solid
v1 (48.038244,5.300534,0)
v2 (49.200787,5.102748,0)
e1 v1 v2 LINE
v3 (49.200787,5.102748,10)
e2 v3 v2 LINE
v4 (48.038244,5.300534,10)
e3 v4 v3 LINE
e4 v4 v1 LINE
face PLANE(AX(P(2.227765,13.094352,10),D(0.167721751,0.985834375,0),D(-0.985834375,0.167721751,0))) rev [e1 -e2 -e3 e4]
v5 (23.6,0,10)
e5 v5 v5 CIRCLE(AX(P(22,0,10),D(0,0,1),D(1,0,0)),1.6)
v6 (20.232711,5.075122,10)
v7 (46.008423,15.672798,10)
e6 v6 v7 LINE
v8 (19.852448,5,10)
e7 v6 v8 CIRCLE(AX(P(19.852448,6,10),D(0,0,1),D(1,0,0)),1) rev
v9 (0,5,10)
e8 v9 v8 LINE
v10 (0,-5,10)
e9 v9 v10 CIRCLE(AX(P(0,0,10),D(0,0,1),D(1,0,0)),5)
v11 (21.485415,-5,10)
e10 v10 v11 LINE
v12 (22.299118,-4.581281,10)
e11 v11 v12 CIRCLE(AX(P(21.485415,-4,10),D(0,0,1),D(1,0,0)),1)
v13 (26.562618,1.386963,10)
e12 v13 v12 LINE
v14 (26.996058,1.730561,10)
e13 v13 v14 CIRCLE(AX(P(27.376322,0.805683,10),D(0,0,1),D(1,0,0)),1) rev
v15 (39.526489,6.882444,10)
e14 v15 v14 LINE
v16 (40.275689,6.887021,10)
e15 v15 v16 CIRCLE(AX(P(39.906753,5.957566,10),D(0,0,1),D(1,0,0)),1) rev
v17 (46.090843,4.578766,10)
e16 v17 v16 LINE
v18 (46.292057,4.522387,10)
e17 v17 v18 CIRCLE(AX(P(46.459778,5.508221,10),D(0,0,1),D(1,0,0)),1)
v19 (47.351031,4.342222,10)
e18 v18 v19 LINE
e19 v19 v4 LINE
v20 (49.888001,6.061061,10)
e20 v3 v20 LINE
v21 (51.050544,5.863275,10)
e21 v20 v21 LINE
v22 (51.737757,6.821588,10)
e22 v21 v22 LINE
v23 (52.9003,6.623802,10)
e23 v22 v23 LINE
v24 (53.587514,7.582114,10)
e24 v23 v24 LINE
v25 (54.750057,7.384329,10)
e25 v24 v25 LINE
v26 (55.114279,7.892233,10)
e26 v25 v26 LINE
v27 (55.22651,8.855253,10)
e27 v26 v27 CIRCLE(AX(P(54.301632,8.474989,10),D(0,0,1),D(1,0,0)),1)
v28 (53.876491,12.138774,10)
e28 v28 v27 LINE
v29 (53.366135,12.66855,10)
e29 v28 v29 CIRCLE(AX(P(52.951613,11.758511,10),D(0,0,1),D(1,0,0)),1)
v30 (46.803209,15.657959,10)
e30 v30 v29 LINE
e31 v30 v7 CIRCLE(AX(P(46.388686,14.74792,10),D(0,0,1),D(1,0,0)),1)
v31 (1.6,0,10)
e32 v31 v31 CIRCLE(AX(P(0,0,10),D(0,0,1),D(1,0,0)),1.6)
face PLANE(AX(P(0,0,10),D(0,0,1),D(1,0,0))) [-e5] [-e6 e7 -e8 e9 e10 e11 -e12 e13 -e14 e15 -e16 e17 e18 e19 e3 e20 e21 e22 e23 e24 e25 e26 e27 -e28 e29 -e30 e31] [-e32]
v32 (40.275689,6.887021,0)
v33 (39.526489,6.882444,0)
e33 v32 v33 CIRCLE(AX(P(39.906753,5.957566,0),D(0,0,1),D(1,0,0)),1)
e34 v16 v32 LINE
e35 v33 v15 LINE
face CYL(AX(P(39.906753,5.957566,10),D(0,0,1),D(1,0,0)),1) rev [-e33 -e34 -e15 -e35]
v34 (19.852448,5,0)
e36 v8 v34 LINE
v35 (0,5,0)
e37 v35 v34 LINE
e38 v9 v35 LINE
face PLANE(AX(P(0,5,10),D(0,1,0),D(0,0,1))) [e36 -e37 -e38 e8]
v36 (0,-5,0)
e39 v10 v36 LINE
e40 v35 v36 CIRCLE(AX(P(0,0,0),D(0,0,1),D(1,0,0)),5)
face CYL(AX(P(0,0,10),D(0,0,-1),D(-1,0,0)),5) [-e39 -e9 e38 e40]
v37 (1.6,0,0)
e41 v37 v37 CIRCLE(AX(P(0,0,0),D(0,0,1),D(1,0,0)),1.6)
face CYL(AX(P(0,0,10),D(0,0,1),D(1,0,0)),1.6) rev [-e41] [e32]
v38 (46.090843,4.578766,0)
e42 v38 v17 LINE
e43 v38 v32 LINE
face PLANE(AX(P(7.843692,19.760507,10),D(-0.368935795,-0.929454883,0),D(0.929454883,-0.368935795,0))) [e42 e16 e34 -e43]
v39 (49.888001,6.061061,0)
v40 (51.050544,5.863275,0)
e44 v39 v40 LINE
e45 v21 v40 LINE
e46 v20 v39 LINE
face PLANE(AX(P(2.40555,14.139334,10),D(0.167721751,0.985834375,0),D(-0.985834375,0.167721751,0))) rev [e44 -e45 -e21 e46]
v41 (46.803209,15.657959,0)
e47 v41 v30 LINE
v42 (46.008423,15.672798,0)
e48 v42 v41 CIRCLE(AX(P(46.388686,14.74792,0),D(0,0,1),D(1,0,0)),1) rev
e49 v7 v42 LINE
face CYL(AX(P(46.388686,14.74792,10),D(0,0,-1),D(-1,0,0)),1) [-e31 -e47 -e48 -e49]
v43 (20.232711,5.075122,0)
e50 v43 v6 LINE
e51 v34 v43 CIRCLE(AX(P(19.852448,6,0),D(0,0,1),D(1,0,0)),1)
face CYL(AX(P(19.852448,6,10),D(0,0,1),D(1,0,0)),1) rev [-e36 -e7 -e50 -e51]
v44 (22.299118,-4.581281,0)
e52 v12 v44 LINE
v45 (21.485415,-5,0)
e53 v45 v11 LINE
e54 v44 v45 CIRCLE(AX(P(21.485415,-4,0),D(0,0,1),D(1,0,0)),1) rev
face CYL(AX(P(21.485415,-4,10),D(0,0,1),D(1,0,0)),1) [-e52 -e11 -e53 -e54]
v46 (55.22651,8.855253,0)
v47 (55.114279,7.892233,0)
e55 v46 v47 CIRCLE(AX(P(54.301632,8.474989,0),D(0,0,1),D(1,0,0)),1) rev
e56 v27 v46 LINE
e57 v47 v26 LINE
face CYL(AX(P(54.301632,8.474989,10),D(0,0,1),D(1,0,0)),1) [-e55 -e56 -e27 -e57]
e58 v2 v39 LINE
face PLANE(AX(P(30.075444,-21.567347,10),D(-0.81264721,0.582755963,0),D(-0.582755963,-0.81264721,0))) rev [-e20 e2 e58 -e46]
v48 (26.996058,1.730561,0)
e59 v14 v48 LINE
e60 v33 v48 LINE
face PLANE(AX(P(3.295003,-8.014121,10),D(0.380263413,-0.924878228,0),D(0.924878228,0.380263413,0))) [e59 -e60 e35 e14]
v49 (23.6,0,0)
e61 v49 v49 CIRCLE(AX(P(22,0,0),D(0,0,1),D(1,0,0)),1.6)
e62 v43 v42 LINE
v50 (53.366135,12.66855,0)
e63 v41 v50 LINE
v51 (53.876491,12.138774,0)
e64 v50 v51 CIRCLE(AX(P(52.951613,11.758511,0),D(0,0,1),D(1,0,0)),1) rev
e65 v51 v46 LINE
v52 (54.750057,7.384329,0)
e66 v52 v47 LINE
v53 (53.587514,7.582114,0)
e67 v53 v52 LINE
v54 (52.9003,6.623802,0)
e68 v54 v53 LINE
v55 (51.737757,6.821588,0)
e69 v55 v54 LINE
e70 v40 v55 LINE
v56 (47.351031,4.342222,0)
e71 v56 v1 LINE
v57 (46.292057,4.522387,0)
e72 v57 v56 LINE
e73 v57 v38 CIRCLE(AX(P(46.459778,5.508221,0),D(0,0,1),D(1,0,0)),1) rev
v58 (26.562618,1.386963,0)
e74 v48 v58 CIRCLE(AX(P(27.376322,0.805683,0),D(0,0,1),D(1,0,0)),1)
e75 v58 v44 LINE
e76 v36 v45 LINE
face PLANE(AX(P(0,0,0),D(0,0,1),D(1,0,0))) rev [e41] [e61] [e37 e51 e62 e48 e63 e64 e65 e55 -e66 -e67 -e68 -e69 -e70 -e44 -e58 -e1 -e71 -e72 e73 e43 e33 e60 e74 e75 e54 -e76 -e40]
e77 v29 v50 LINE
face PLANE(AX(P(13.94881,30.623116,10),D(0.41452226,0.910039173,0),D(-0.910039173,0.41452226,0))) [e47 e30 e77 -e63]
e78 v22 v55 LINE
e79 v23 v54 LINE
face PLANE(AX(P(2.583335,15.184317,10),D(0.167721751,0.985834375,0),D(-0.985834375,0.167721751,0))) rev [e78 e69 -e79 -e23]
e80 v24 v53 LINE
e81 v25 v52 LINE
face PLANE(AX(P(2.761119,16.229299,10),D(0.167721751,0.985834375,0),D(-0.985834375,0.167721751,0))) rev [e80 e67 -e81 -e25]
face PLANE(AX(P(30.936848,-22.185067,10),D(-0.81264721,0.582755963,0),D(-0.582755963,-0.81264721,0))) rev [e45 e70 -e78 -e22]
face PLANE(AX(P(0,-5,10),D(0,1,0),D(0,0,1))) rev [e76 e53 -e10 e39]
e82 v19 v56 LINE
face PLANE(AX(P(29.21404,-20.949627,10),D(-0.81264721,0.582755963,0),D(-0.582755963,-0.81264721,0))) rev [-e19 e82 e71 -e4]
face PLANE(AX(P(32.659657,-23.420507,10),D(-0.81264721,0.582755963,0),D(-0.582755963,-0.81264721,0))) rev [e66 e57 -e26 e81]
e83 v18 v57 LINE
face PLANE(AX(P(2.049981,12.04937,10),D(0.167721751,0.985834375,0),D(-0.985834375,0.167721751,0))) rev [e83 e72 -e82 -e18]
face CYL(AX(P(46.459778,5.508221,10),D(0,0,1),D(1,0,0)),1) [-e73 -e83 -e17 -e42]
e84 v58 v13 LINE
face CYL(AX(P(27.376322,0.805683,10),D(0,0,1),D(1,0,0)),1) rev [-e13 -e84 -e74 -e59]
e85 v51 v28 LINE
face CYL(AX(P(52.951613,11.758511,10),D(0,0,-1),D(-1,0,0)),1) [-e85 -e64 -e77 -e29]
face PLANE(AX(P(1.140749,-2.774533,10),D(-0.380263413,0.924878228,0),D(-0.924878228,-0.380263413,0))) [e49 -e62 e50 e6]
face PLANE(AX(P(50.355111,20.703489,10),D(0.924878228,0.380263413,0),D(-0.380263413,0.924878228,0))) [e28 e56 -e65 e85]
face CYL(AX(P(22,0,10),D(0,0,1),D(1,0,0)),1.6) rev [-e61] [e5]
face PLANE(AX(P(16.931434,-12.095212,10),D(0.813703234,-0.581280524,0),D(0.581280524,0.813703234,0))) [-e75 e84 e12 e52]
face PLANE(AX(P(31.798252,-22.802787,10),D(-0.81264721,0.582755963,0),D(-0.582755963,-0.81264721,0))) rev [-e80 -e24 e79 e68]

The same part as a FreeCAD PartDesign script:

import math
import FreeCAD as App
import Part
import Sketcher
from FreeCAD import Vector
Q = App.Units.Quantity


def edges_at(feature, points):
    """Names of the edges that pass closest to the given points."""
    edges = feature.Shape.Edges
    near = lambda p: min(range(len(edges)), key=lambda i: edges[i].distToShape(Part.Vertex(*p))[0])
    return sorted({f"Edge{near(p) + 1}" for p in points})

doc = App.newDocument("Part")
body = doc.addObject("PartDesign::Body", "Body")

# Sketch on XY plane
sketch1 = doc.addObject("Sketcher::SketchObject", "Sketch")
body.addObject(sketch1)
sketch1.AttachmentSupport = (doc.XY_Plane, [""])
sketch1.MapMode = "FlatFace"
sketch1.addGeometry([
    Part.LineSegment(Vector(20.1, 5, 0), Vector(0, 5, 0)),  # 0
    Part.ArcOfCircle(Part.Circle(Vector(0, 0, 0), Vector(0, 0, 1), 5), math.radians(90), math.radians(270)),  # 1
    Part.LineSegment(Vector(0, -5, 0), Vector(22, -5, 0)),  # 2
    Part.LineSegment(Vector(22, -5, 0), Vector(26.7, 1.6, 0)),  # 3
    Part.LineSegment(Vector(26.7, 1.6, 0), Vector(39.9, 7, 0)),  # 4
    Part.LineSegment(Vector(39.9, 7, 0), Vector(46.2, 4.5, 0)),  # 5
    Part.LineSegment(Vector(46.2, 4.5, 0), Vector(47.4, 4.3, 0)),  # 6
    Part.LineSegment(Vector(47.4, 4.3, 0), Vector(48, 5.3, 0)),  # 7
    Part.LineSegment(Vector(48, 5.3, 0), Vector(49.2, 5.1, 0)),  # 8
    Part.LineSegment(Vector(49.2, 5.1, 0), Vector(49.9, 6.1, 0)),  # 9
    Part.LineSegment(Vector(49.9, 6.1, 0), Vector(51.1, 5.9, 0)),  # 10
    Part.LineSegment(Vector(51.1, 5.9, 0), Vector(51.7, 6.8, 0)),  # 11
    Part.LineSegment(Vector(51.7, 6.8, 0), Vector(52.9, 6.6, 0)),  # 12
    Part.LineSegment(Vector(52.9, 6.6, 0), Vector(53.6, 7.6, 0)),  # 13
    Part.LineSegment(Vector(53.6, 7.6, 0), Vector(54.8, 7.4, 0)),  # 14
    Part.LineSegment(Vector(54.8, 7.4, 0), Vector(55.4, 8.3, 0)),  # 15
    Part.LineSegment(Vector(55.4, 8.3, 0), Vector(53.7, 12.5, 0)),  # 16
    Part.LineSegment(Vector(53.7, 12.5, 0), Vector(46.4, 15.8, 0)),  # 17
    Part.LineSegment(Vector(46.4, 15.8, 0), Vector(20.1, 5, 0)),  # 18
    Part.Circle(Vector(0, 0, 0), Vector(0, 0, 1), 1.5),  # 19
    Part.Circle(Vector(22, 0, 0), Vector(0, 0, 1), 1.5),  # 20
], False)
sketch1.addConstraint([
    Sketcher.Constraint("Tangent", 0, 2, 1, 1),
    Sketcher.Constraint("Tangent", 1, 2, 2, 1),
    Sketcher.Constraint("Coincident", 2, 2, 3, 1),
    Sketcher.Constraint("Coincident", 3, 2, 4, 1),
    Sketcher.Constraint("Coincident", 4, 2, 5, 1),
    Sketcher.Constraint("Coincident", 5, 2, 6, 1),
    Sketcher.Constraint("Coincident", 6, 2, 7, 1),
    Sketcher.Constraint("Coincident", 7, 2, 8, 1),
    Sketcher.Constraint("Coincident", 8, 2, 9, 1),
    Sketcher.Constraint("Coincident", 9, 2, 10, 1),
    Sketcher.Constraint("Coincident", 10, 2, 11, 1),
    Sketcher.Constraint("Coincident", 11, 2, 12, 1),
    Sketcher.Constraint("Coincident", 12, 2, 13, 1),
    Sketcher.Constraint("Coincident", 13, 2, 14, 1),
    Sketcher.Constraint("Coincident", 14, 2, 15, 1),
    Sketcher.Constraint("Coincident", 15, 2, 16, 1),
    Sketcher.Constraint("Coincident", 16, 2, 17, 1),
    Sketcher.Constraint("Coincident", 17, 2, 18, 1),
    Sketcher.Constraint("Coincident", 18, 2, 0, 1),
    Sketcher.Constraint("Horizontal", 0),
    Sketcher.Constraint("Horizontal", 2),
    Sketcher.Constraint("Coincident", 1, 3, -1, 1),
    Sketcher.Constraint("Coincident", 19, 3, -1, 1),
    Sketcher.Constraint("Equal", 19, 20),
    Sketcher.Constraint("PointOnObject", 20, 3, -1),
    Sketcher.Constraint("Parallel", 6, 8),
    Sketcher.Constraint("Parallel", 7, 9),
    Sketcher.Constraint("Parallel", 8, 10),
    Sketcher.Constraint("Parallel", 9, 11),
    Sketcher.Constraint("Parallel", 10, 12),
    Sketcher.Constraint("Parallel", 11, 13),
    Sketcher.Constraint("Parallel", 12, 14),
    Sketcher.Constraint("Parallel", 13, 15),
    Sketcher.Constraint("Perpendicular", 4, 16),
    Sketcher.Constraint("Perpendicular", 16, 18),
    Sketcher.Constraint("Vertical", 20, 3, 2, 2),
    Sketcher.Constraint("Equal", 6, 7),
    Sketcher.Constraint("Equal", 7, 8),
    Sketcher.Constraint("Equal", 8, 9),
    Sketcher.Constraint("Equal", 9, 10),
    Sketcher.Constraint("Equal", 10, 11),
    Sketcher.Constraint("Equal", 11, 12),
    Sketcher.Constraint("Equal", 12, 13),
    Sketcher.Constraint("Equal", 13, 14),
    Sketcher.Constraint("Equal", 14, 15),
    Sketcher.Constraint("Diameter", 19, Q("3 mm")),
    Sketcher.Constraint("Radius", 1, Q("5 mm")),
    Sketcher.Constraint("DistanceX", 2, 1, 2, 2, Q("22 mm")),
    Sketcher.Constraint("Distance", 16, Q("4.5 mm")),
    Sketcher.Constraint("Distance", 18, Q("28.5 mm")),
    Sketcher.Constraint("DistanceX", 0, 2, 0, 1, Q("20.05 mm")),
    Sketcher.Constraint("Angle", 4, Q("22.35 deg")),
    Sketcher.Constraint("Angle", 5, Q("-21.65 deg")),
    Sketcher.Constraint("Distance", 4, Q("14.24 mm")),
    Sketcher.Constraint("DistanceX", -1, 1, 9, 2, Q("49.888001 mm")),
    Sketcher.Constraint("DistanceX", -1, 1, 3, 2, Q("26.729898 mm")),
    Sketcher.Constraint("DistanceX", -1, 1, 12, 2, Q("52.9003 mm")),
    Sketcher.Constraint("DistanceY", -1, 1, 3, 2, Q("1.62113 mm")),
    Sketcher.Constraint("DistanceX", -1, 1, 5, 2, Q("46.188488 mm")),
    Sketcher.Constraint("DistanceY", -1, 1, 6, 2, Q("4.342222 mm")),
])
pad1 = doc.addObject("PartDesign::Pad", "Pad")
body.addObject(pad1)
pad1.Profile = sketch1
pad1.Length = 10
doc.recompute()

fillet = doc.addObject("PartDesign::Fillet", "Fillet")
body.addObject(fillet)
fillet.Base = (pad1, edges_at(pad1, [
    (22, -5, 5),
    (20.05, 5, 5),
    (46.409, 15.838, 5),
    (53.726, 12.505, 5),
    (55.437, 8.343, 5),
    (46.188, 4.54, 5),
    (39.9, 7.036, 5),
    (26.73, 1.621, 5),
]))
fillet.Radius = 1

# Sketch on XY plane
sketch2 = doc.addObject("Sketcher::SketchObject", "Sketch001")
body.addObject(sketch2)
sketch2.AttachmentSupport = (doc.XY_Plane, [""])
sketch2.MapMode = "FlatFace"
sketch2.AttachmentOffset = App.Placement(Vector(0, 0, 10), App.Rotation())
sketch2.addGeometry([
    Part.Circle(Vector(0, 0, 0), Vector(0, 0, 1), 1.6),
    Part.Circle(Vector(22, 0, 0), Vector(0, 0, 1), 1.6),
], False)
sketch2.addConstraint([
    Sketcher.Constraint("Coincident", 0, 3, -1, 1),
    Sketcher.Constraint("Equal", 0, 1),
    Sketcher.Constraint("PointOnObject", 1, 3, -1),
    Sketcher.Constraint("Diameter", 0, Q("3.2 mm")),
    Sketcher.Constraint("DistanceX", -1, 1, 1, 3, Q("22 mm")),
])
doc.recompute()
hole = doc.addObject("PartDesign::Hole", "Hole")
body.addObject(hole)
hole.Profile = sketch2
hole.ThreadType = "None"
hole.Diameter = 3.2
hole.DepthType = "ThroughAll"

doc.recompute()
